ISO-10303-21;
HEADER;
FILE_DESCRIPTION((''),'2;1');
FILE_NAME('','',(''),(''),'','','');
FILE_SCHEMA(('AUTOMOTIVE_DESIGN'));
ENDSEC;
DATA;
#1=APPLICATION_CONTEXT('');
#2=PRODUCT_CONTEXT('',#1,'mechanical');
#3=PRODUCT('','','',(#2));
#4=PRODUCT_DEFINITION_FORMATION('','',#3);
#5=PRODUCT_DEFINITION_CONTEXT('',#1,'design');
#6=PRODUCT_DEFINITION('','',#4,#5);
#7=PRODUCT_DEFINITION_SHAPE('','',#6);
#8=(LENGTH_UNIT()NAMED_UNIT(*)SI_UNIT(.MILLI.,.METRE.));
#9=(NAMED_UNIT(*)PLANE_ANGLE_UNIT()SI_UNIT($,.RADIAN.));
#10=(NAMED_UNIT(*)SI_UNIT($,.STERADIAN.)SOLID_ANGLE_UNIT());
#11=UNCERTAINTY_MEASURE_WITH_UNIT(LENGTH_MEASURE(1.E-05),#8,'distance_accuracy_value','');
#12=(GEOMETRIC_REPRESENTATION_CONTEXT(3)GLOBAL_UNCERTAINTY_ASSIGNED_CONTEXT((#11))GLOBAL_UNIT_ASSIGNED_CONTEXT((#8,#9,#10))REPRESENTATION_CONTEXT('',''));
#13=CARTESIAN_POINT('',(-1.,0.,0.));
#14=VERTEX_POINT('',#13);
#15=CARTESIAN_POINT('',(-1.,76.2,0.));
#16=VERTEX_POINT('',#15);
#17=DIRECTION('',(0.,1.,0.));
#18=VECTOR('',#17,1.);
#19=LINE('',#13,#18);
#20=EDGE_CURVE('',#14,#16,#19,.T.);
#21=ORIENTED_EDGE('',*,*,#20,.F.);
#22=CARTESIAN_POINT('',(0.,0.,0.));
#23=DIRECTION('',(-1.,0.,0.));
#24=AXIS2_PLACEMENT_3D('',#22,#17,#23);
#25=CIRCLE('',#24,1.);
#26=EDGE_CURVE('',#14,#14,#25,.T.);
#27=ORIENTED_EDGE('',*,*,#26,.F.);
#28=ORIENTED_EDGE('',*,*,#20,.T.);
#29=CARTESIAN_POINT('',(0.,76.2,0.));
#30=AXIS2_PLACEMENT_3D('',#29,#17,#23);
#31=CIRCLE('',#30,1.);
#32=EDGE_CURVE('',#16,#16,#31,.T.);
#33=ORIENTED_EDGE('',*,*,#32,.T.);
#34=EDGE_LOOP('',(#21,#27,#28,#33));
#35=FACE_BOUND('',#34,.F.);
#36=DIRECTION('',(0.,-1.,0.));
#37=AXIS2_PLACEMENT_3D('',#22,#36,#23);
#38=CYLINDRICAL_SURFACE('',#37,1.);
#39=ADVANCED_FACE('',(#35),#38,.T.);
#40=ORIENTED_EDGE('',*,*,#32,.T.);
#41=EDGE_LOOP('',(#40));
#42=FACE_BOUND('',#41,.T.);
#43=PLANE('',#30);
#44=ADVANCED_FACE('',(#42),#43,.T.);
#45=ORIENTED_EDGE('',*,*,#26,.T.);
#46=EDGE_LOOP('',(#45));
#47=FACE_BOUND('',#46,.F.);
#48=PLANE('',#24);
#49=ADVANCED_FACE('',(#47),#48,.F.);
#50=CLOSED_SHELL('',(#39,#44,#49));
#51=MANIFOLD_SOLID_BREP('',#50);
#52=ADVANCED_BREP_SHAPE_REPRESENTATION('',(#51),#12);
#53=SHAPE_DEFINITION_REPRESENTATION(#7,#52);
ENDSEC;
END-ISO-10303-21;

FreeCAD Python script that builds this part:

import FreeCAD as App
import Part
import Sketcher

V = App.Vector

doc = App.newDocument("Part")
body = doc.addObject("PartDesign::Body", "Body")

# Sketch on XZ plane
sketch1 = body.newObject("Sketcher::SketchObject", "Sketch")
sketch1.AttachmentSupport = (doc.getObject("XZ_Plane"), [""])
sketch1.MapMode = "FlatFace"
sketch1.addGeometry(Part.Circle(V(0, 0, 0), V(0, 0, 1), 1), False)
sketch1.addConstraint(Sketcher.Constraint("Coincident", 0, 3, -1, 1))
sketch1.addConstraint(Sketcher.Constraint("Diameter", 0, 2.0))
pad1 = body.newObject("PartDesign::Pad", "Pad")
pad1.Profile = sketch1
pad1.Length = 76.2
pad1.Reversed = True

doc.recompute()
